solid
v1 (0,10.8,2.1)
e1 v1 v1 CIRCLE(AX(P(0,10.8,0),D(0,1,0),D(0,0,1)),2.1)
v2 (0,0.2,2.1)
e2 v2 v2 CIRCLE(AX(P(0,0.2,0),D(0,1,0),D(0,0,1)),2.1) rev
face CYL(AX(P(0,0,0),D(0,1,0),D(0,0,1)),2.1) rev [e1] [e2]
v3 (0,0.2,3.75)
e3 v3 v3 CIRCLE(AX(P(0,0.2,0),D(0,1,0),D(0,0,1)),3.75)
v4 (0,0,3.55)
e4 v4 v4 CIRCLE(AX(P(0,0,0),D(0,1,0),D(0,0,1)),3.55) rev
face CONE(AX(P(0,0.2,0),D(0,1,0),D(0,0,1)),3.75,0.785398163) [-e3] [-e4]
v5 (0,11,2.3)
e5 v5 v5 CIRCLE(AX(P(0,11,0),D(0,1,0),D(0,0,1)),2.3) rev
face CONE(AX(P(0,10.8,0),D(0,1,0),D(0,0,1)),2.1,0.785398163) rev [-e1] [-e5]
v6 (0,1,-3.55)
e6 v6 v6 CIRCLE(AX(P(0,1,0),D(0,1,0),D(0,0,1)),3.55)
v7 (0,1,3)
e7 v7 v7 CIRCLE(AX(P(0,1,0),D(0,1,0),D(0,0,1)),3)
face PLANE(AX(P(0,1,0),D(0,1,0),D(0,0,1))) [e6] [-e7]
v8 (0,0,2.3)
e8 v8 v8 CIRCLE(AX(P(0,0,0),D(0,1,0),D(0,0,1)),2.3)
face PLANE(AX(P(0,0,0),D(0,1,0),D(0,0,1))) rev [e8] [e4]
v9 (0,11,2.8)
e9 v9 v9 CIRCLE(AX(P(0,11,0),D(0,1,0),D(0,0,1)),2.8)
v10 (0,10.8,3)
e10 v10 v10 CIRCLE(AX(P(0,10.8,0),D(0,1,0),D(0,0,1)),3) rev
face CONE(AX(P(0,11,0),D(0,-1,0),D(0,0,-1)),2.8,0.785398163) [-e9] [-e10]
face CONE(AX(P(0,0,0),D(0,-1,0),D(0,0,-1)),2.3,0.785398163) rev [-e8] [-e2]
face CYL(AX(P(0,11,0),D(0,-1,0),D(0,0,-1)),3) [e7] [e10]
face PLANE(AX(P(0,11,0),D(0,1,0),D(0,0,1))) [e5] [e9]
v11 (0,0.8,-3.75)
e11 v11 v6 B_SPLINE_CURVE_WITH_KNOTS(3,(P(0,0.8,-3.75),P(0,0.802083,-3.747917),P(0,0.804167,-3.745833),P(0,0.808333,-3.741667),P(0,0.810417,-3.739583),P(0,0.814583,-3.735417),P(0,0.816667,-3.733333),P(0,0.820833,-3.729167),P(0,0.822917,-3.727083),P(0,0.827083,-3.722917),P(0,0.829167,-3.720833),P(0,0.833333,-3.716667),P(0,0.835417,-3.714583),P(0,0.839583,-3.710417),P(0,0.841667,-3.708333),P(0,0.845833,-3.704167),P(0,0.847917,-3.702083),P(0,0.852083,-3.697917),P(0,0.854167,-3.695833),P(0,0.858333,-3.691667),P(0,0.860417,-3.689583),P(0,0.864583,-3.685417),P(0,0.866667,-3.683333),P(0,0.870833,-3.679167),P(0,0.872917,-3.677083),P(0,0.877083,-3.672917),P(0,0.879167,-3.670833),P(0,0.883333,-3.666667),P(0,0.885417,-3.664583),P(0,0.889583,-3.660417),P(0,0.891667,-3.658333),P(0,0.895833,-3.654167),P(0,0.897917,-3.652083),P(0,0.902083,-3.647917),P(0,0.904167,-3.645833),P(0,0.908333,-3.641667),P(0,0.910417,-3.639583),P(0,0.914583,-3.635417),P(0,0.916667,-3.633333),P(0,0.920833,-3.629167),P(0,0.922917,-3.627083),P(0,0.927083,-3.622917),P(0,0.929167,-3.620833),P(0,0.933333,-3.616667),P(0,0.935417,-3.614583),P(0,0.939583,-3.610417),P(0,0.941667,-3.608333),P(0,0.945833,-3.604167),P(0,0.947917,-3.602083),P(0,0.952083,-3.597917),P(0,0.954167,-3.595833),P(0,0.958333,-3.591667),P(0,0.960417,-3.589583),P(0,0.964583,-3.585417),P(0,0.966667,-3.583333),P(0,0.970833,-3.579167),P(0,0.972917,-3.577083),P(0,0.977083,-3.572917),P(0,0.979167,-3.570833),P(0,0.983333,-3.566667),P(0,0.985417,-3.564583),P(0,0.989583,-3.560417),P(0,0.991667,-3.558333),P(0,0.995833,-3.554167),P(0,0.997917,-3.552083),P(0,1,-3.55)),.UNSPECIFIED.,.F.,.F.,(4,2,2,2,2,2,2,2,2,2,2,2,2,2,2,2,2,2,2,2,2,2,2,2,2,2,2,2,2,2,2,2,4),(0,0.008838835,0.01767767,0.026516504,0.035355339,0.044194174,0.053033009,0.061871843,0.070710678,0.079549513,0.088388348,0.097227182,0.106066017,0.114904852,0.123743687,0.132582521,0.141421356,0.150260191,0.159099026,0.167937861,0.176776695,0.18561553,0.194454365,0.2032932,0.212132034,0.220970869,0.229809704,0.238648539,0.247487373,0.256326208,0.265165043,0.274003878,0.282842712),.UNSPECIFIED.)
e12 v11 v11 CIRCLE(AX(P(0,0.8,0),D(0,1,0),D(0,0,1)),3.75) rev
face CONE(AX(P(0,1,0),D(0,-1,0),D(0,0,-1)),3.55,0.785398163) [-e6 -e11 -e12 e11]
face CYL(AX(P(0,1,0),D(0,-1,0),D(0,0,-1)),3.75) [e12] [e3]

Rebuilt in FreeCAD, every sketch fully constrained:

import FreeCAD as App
import Part
import Sketcher
Q = App.Units.Quantity


def edges_at(feature, points):
    """Names of the edges that pass closest to the given points."""
    edges = feature.Shape.Edges
    near = lambda p: min(range(len(edges)), key=lambda i: edges[i].distToShape(Part.Vertex(*p))[0])
    return sorted({f"Edge{near(p) + 1}" for p in points})

doc = App.newDocument("Part")
body = doc.addObject("PartDesign::Body", "Body")

# Sketch on XZ plane
sketch1 = body.newObject("Sketcher::SketchObject", "Sketch")
sketch1.AttachmentSupport = (doc.getObject("XZ_Plane"), [""])
sketch1.MapMode = "FlatFace"
sketch1.addGeometry(Part.Circle(App.Vector(0, 0, 0), App.Vector(0, 0, 1), 3.8), False)
sketch1.addConstraint([
    Sketcher.Constraint("Coincident", 0, 3, -1, 1),
    Sketcher.Constraint("Diameter", 0, Q("7.5 mm")),
])
pad1 = body.newObject("PartDesign::Pad", "Pad")
pad1.Profile = sketch1
pad1.Length = 1
pad1.Reversed = True

# Sketch on XZ plane
sketch2 = body.newObject("Sketcher::SketchObject", "Sketch001")
sketch2.AttachmentSupport = (doc.getObject("XZ_Plane"), [""])
sketch2.MapMode = "FlatFace"
sketch2.AttachmentOffset = App.Placement(App.Vector(0, 0, -1), App.Rotation())
sketch2.addGeometry(Part.Circle(App.Vector(0, 0, 0), App.Vector(0, 0, 1), 3), False)
sketch2.addConstraint([
    Sketcher.Constraint("Coincident", 0, 3, -1, 1),
    Sketcher.Constraint("Diameter", 0, Q("6 mm")),
])
pad2 = body.newObject("PartDesign::Pad", "Pad001")
pad2.Profile = sketch2
pad2.Length = 10
pad2.Reversed = True

# Sketch on XZ plane
sketch3 = body.newObject("Sketcher::SketchObject", "Sketch002")
sketch3.AttachmentSupport = (doc.getObject("XZ_Plane"), [""])
sketch3.MapMode = "FlatFace"
sketch3.AttachmentOffset = App.Placement(App.Vector(0, 0, -11), App.Rotation())
sketch3.addGeometry(Part.Circle(App.Vector(0, 0, 0), App.Vector(0, 0, 1), 2.1), False)
sketch3.addConstraint([
    Sketcher.Constraint("Coincident", 0, 3, -1, 1),
    Sketcher.Constraint("Diameter", 0, Q("4.2 mm")),
])
pocket1 = body.newObject("PartDesign::Pocket", "Pocket")
pocket1.Profile = sketch3
pocket1.Type = "ThroughAll"
pocket1.Reversed = True
doc.recompute()

chamfer = body.newObject("PartDesign::Chamfer", "Chamfer")
chamfer.Base = (pocket1, edges_at(pocket1, [(0, 1, -3.75), (0, 11, -3)]))
chamfer.Size = 0.2
doc.recompute()

chamfer2 = body.newObject("PartDesign::Chamfer", "Chamfer001")
chamfer2.Base = (chamfer, edges_at(chamfer, [(0, 0, -2.1), (0, 11, -2.1), (0, 0, -3.75)]))
chamfer2.Size = 0.2

doc.recompute()
